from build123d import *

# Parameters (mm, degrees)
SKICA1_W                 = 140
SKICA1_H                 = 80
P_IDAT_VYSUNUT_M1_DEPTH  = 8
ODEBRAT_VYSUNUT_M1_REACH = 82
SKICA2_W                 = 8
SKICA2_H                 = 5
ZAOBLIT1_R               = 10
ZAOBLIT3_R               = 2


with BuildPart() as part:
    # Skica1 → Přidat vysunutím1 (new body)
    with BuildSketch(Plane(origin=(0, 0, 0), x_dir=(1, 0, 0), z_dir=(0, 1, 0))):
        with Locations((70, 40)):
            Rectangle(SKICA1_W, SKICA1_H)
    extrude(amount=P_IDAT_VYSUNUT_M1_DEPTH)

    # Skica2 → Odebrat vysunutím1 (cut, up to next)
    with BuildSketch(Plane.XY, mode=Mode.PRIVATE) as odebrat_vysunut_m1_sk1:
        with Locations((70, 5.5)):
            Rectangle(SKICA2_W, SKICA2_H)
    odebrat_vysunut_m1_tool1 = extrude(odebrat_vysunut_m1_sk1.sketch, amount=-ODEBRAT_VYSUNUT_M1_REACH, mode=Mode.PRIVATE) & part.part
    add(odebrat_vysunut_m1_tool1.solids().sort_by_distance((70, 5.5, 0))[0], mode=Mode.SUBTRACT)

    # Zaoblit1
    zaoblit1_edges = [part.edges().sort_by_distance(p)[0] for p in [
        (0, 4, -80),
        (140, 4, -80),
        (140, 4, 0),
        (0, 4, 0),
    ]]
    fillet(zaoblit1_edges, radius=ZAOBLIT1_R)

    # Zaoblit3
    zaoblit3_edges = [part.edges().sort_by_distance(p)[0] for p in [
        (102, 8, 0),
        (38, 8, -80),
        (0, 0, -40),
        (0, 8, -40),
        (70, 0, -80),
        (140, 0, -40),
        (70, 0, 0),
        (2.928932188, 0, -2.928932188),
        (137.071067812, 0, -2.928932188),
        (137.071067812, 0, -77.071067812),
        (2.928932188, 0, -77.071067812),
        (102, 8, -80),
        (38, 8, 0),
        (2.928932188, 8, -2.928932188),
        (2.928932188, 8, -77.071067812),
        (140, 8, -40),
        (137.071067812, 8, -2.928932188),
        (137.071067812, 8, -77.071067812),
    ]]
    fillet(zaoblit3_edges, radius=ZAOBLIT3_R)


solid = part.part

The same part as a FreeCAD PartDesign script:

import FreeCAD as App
import Part
import Sketcher

V = App.Vector
Q = App.Units.Quantity


def edges_at(feature, points):
    """Names of the edges that pass closest to the given points."""
    edges = feature.Shape.Edges
    near = lambda p: min(range(len(edges)), key=lambda i: edges[i].distToShape(Part.Vertex(*p))[0])
    return sorted({f"Edge{near(p) + 1}" for p in points})


def add_polygon(sketch, points):
    """Adds a closed chain of lines whose ends are joined by coincident constraints."""
    first, n = sketch.GeometryCount, len(points)
    for a, b in zip(points, points[1:] + points[:1]):
        sketch.addGeometry(Part.LineSegment(App.Vector(*a, 0), App.Vector(*b, 0)), False)
    for i in range(n):
        sketch.addConstraint(Sketcher.Constraint("Coincident", first + i, 2, first + (i + 1) % n, 1))

doc = App.newDocument("Part")
body = doc.addObject("PartDesign::Body", "Body")

sketch1 = doc.addObject("Sketcher::SketchObject", "Sketch")
body.addObject(sketch1)
sketch1.AttachmentSupport = (doc.XZ_Plane, [""])
sketch1.MapMode = "FlatFace"
add_polygon(sketch1, [(0, -80), (0, 0), (140, 0), (140, -80)])
sketch1.addConstraint([
    Sketcher.Constraint("Vertical", 0),
    Sketcher.Constraint("Horizontal", 1),
    Sketcher.Constraint("Vertical", 2),
    Sketcher.Constraint("Horizontal", 3),
    Sketcher.Constraint("Coincident", 0, 2, -1, 1),
    Sketcher.Constraint("DistanceX", 1, 1, 1, 2, Q("140 mm")),
    Sketcher.Constraint("DistanceY", 0, 1, 0, 2, Q("80 mm")),
])
pad1 = doc.addObject("PartDesign::Pad", "Pad")
body.addObject(pad1)
pad1.Profile = sketch1
pad1.Length = 8
pad1.Reversed = True

sketch2 = doc.addObject("Sketcher::SketchObject", "Sketch001")
body.addObject(sketch2)
sketch2.AttachmentSupport = (doc.XY_Plane, [""])
sketch2.MapMode = "FlatFace"
add_polygon(sketch2, [(66, 8), (66, 3), (74, 3), (74, 8)])
sketch2.addConstraint([
    Sketcher.Constraint("Vertical", 0),
    Sketcher.Constraint("Horizontal", 1),
    Sketcher.Constraint("Vertical", 2),
    Sketcher.Constraint("Horizontal", 3),
    Sketcher.Constraint("DistanceX", 1, 1, 1, 2, Q("8 mm")),
    Sketcher.Constraint("DistanceY", 0, 2, 0, 1, Q("5 mm")),
    Sketcher.Constraint("DistanceX", -1, 1, 0, 2, Q("66 mm")),
    Sketcher.Constraint("DistanceY", -1, 1, 0, 2, Q("3 mm")),
])
pocket1 = doc.addObject("PartDesign::Pocket", "Pocket")
body.addObject(pocket1)
pocket1.Profile = sketch2
pocket1.Type = "UpToFirst"
doc.recompute()

fillet = doc.addObject("PartDesign::Fillet", "Fillet")
body.addObject(fillet)
fillet.Base = (pocket1, edges_at(pocket1, [
    (0, 4, -80),
    (140, 4, -80),
    (140, 4, 0),
    (0, 4, 0),
]))
fillet.Radius = 10
doc.recompute()

fillet2 = doc.addObject("PartDesign::Fillet", "Fillet001")
body.addObject(fillet2)
fillet2.Base = (fillet, edges_at(fillet, [
    (102, 8, 0),
    (38, 8, -80),
    (0, 0, -40),
    (0, 8, -40),
    (70, 0, -80),
    (140, 0, -40),
    (70, 0, 0),
    (2.929, 0, -2.929),
    (137.071, 0, -2.929),
    (137.071, 0, -77.071),
    (2.929, 0, -77.071),
    (102, 8, -80),
    (38, 8, 0),
    (2.929, 8, -2.929),
    (2.929, 8, -77.071),
    (140, 8, -40),
    (137.071, 8, -2.929),
    (137.071, 8, -77.071),
]))
fillet2.Radius = 2

doc.recompute()
